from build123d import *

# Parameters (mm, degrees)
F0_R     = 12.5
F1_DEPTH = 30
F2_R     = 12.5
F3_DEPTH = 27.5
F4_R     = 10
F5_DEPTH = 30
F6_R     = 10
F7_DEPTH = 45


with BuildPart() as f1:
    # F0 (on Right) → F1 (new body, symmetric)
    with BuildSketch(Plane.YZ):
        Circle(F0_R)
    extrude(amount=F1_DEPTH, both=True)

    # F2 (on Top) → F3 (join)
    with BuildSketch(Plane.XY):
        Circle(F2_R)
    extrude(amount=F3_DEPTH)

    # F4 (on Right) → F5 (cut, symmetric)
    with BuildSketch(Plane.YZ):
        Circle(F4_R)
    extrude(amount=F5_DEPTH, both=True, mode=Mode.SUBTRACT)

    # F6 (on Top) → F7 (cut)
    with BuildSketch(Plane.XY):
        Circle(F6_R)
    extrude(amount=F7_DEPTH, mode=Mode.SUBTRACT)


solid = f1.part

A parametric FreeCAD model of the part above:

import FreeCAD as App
import Part
import Sketcher
from FreeCAD import Vector

doc = App.newDocument("Part")
params = doc.addObject("Spreadsheet::Sheet", "Params")
for row, (alias, value) in enumerate([
    ("sketch1_diameter", "25 mm"),
    ("pad1_length", "60 mm"),
    ("sketch2_diameter", "25 mm"),
    ("pad2_length", "27.5 mm"),
    ("sketch3_diameter", "20 mm"),
    ("pocket1_length", "60 mm"),
    ("sketch4_diameter", "20 mm"),
    ("pocket2_length", "45 mm"),
], start=1):
    params.set(f"A{row}", alias)
    params.set(f"B{row}", "=" + value)
    params.setAlias(f"B{row}", alias)

body = doc.addObject("PartDesign::Body", "Body")

sketch1 = body.newObject("Sketcher::SketchObject", "Sketch")
sketch1.AttachmentSupport = (doc.getObject("YZ_Plane"), [""])
sketch1.MapMode = "FlatFace"
sketch1.addGeometry(Part.Circle(Vector(0, 0, 0), Vector(0, 0, 1), 12.5), False)
sketch1.addConstraint(Sketcher.Constraint("Coincident", 0, 3, -1, 1))
sketch1.addConstraint(Sketcher.Constraint("Diameter", 0, 25.0))
sketch1.setExpression("Constraints[1]", "Params.sketch1_diameter")
pad1 = body.newObject("PartDesign::Pad", "Pad")
pad1.Profile = sketch1
pad1.setExpression("Length", "Params.pad1_length")
pad1.Midplane = True

sketch2 = body.newObject("Sketcher::SketchObject", "Sketch001")
sketch2.AttachmentSupport = (doc.getObject("XY_Plane"), [""])
sketch2.MapMode = "FlatFace"
sketch2.addGeometry(Part.Circle(Vector(0, 0, 0), Vector(0, 0, 1), 12.5), False)
sketch2.addConstraint(Sketcher.Constraint("Coincident", 0, 3, -1, 1))
sketch2.addConstraint(Sketcher.Constraint("Diameter", 0, 25.0))
sketch2.setExpression("Constraints[1]", "Params.sketch2_diameter")
pad2 = body.newObject("PartDesign::Pad", "Pad001")
pad2.Profile = sketch2
pad2.setExpression("Length", "Params.pad2_length")

sketch3 = body.newObject("Sketcher::SketchObject", "Sketch002")
sketch3.AttachmentSupport = (doc.getObject("YZ_Plane"), [""])
sketch3.MapMode = "FlatFace"
sketch3.addGeometry(Part.Circle(Vector(0, 0, 0), Vector(0, 0, 1), 10), False)
sketch3.addConstraint(Sketcher.Constraint("Coincident", 0, 3, -1, 1))
sketch3.addConstraint(Sketcher.Constraint("Diameter", 0, 20.0))
sketch3.setExpression("Constraints[1]", "Params.sketch3_diameter")
pocket1 = body.newObject("PartDesign::Pocket", "Pocket")
pocket1.Profile = sketch3
pocket1.setExpression("Length", "Params.pocket1_length")
pocket1.Midplane = True

sketch4 = body.newObject("Sketcher::SketchObject", "Sketch003")
sketch4.AttachmentSupport = (doc.getObject("XY_Plane"), [""])
sketch4.MapMode = "FlatFace"
sketch4.addGeometry(Part.Circle(Vector(0, 0, 0), Vector(0, 0, 1), 10), False)
sketch4.addConstraint(Sketcher.Constraint("Coincident", 0, 3, -1, 1))
sketch4.addConstraint(Sketcher.Constraint("Diameter", 0, 20.0))
sketch4.setExpression("Constraints[1]", "Params.sketch4_diameter")
pocket2 = body.newObject("PartDesign::Pocket", "Pocket001")
pocket2.Profile = sketch4
pocket2.setExpression("Length", "Params.pocket2_length")
pocket2.Reversed = True

doc.recompute()
